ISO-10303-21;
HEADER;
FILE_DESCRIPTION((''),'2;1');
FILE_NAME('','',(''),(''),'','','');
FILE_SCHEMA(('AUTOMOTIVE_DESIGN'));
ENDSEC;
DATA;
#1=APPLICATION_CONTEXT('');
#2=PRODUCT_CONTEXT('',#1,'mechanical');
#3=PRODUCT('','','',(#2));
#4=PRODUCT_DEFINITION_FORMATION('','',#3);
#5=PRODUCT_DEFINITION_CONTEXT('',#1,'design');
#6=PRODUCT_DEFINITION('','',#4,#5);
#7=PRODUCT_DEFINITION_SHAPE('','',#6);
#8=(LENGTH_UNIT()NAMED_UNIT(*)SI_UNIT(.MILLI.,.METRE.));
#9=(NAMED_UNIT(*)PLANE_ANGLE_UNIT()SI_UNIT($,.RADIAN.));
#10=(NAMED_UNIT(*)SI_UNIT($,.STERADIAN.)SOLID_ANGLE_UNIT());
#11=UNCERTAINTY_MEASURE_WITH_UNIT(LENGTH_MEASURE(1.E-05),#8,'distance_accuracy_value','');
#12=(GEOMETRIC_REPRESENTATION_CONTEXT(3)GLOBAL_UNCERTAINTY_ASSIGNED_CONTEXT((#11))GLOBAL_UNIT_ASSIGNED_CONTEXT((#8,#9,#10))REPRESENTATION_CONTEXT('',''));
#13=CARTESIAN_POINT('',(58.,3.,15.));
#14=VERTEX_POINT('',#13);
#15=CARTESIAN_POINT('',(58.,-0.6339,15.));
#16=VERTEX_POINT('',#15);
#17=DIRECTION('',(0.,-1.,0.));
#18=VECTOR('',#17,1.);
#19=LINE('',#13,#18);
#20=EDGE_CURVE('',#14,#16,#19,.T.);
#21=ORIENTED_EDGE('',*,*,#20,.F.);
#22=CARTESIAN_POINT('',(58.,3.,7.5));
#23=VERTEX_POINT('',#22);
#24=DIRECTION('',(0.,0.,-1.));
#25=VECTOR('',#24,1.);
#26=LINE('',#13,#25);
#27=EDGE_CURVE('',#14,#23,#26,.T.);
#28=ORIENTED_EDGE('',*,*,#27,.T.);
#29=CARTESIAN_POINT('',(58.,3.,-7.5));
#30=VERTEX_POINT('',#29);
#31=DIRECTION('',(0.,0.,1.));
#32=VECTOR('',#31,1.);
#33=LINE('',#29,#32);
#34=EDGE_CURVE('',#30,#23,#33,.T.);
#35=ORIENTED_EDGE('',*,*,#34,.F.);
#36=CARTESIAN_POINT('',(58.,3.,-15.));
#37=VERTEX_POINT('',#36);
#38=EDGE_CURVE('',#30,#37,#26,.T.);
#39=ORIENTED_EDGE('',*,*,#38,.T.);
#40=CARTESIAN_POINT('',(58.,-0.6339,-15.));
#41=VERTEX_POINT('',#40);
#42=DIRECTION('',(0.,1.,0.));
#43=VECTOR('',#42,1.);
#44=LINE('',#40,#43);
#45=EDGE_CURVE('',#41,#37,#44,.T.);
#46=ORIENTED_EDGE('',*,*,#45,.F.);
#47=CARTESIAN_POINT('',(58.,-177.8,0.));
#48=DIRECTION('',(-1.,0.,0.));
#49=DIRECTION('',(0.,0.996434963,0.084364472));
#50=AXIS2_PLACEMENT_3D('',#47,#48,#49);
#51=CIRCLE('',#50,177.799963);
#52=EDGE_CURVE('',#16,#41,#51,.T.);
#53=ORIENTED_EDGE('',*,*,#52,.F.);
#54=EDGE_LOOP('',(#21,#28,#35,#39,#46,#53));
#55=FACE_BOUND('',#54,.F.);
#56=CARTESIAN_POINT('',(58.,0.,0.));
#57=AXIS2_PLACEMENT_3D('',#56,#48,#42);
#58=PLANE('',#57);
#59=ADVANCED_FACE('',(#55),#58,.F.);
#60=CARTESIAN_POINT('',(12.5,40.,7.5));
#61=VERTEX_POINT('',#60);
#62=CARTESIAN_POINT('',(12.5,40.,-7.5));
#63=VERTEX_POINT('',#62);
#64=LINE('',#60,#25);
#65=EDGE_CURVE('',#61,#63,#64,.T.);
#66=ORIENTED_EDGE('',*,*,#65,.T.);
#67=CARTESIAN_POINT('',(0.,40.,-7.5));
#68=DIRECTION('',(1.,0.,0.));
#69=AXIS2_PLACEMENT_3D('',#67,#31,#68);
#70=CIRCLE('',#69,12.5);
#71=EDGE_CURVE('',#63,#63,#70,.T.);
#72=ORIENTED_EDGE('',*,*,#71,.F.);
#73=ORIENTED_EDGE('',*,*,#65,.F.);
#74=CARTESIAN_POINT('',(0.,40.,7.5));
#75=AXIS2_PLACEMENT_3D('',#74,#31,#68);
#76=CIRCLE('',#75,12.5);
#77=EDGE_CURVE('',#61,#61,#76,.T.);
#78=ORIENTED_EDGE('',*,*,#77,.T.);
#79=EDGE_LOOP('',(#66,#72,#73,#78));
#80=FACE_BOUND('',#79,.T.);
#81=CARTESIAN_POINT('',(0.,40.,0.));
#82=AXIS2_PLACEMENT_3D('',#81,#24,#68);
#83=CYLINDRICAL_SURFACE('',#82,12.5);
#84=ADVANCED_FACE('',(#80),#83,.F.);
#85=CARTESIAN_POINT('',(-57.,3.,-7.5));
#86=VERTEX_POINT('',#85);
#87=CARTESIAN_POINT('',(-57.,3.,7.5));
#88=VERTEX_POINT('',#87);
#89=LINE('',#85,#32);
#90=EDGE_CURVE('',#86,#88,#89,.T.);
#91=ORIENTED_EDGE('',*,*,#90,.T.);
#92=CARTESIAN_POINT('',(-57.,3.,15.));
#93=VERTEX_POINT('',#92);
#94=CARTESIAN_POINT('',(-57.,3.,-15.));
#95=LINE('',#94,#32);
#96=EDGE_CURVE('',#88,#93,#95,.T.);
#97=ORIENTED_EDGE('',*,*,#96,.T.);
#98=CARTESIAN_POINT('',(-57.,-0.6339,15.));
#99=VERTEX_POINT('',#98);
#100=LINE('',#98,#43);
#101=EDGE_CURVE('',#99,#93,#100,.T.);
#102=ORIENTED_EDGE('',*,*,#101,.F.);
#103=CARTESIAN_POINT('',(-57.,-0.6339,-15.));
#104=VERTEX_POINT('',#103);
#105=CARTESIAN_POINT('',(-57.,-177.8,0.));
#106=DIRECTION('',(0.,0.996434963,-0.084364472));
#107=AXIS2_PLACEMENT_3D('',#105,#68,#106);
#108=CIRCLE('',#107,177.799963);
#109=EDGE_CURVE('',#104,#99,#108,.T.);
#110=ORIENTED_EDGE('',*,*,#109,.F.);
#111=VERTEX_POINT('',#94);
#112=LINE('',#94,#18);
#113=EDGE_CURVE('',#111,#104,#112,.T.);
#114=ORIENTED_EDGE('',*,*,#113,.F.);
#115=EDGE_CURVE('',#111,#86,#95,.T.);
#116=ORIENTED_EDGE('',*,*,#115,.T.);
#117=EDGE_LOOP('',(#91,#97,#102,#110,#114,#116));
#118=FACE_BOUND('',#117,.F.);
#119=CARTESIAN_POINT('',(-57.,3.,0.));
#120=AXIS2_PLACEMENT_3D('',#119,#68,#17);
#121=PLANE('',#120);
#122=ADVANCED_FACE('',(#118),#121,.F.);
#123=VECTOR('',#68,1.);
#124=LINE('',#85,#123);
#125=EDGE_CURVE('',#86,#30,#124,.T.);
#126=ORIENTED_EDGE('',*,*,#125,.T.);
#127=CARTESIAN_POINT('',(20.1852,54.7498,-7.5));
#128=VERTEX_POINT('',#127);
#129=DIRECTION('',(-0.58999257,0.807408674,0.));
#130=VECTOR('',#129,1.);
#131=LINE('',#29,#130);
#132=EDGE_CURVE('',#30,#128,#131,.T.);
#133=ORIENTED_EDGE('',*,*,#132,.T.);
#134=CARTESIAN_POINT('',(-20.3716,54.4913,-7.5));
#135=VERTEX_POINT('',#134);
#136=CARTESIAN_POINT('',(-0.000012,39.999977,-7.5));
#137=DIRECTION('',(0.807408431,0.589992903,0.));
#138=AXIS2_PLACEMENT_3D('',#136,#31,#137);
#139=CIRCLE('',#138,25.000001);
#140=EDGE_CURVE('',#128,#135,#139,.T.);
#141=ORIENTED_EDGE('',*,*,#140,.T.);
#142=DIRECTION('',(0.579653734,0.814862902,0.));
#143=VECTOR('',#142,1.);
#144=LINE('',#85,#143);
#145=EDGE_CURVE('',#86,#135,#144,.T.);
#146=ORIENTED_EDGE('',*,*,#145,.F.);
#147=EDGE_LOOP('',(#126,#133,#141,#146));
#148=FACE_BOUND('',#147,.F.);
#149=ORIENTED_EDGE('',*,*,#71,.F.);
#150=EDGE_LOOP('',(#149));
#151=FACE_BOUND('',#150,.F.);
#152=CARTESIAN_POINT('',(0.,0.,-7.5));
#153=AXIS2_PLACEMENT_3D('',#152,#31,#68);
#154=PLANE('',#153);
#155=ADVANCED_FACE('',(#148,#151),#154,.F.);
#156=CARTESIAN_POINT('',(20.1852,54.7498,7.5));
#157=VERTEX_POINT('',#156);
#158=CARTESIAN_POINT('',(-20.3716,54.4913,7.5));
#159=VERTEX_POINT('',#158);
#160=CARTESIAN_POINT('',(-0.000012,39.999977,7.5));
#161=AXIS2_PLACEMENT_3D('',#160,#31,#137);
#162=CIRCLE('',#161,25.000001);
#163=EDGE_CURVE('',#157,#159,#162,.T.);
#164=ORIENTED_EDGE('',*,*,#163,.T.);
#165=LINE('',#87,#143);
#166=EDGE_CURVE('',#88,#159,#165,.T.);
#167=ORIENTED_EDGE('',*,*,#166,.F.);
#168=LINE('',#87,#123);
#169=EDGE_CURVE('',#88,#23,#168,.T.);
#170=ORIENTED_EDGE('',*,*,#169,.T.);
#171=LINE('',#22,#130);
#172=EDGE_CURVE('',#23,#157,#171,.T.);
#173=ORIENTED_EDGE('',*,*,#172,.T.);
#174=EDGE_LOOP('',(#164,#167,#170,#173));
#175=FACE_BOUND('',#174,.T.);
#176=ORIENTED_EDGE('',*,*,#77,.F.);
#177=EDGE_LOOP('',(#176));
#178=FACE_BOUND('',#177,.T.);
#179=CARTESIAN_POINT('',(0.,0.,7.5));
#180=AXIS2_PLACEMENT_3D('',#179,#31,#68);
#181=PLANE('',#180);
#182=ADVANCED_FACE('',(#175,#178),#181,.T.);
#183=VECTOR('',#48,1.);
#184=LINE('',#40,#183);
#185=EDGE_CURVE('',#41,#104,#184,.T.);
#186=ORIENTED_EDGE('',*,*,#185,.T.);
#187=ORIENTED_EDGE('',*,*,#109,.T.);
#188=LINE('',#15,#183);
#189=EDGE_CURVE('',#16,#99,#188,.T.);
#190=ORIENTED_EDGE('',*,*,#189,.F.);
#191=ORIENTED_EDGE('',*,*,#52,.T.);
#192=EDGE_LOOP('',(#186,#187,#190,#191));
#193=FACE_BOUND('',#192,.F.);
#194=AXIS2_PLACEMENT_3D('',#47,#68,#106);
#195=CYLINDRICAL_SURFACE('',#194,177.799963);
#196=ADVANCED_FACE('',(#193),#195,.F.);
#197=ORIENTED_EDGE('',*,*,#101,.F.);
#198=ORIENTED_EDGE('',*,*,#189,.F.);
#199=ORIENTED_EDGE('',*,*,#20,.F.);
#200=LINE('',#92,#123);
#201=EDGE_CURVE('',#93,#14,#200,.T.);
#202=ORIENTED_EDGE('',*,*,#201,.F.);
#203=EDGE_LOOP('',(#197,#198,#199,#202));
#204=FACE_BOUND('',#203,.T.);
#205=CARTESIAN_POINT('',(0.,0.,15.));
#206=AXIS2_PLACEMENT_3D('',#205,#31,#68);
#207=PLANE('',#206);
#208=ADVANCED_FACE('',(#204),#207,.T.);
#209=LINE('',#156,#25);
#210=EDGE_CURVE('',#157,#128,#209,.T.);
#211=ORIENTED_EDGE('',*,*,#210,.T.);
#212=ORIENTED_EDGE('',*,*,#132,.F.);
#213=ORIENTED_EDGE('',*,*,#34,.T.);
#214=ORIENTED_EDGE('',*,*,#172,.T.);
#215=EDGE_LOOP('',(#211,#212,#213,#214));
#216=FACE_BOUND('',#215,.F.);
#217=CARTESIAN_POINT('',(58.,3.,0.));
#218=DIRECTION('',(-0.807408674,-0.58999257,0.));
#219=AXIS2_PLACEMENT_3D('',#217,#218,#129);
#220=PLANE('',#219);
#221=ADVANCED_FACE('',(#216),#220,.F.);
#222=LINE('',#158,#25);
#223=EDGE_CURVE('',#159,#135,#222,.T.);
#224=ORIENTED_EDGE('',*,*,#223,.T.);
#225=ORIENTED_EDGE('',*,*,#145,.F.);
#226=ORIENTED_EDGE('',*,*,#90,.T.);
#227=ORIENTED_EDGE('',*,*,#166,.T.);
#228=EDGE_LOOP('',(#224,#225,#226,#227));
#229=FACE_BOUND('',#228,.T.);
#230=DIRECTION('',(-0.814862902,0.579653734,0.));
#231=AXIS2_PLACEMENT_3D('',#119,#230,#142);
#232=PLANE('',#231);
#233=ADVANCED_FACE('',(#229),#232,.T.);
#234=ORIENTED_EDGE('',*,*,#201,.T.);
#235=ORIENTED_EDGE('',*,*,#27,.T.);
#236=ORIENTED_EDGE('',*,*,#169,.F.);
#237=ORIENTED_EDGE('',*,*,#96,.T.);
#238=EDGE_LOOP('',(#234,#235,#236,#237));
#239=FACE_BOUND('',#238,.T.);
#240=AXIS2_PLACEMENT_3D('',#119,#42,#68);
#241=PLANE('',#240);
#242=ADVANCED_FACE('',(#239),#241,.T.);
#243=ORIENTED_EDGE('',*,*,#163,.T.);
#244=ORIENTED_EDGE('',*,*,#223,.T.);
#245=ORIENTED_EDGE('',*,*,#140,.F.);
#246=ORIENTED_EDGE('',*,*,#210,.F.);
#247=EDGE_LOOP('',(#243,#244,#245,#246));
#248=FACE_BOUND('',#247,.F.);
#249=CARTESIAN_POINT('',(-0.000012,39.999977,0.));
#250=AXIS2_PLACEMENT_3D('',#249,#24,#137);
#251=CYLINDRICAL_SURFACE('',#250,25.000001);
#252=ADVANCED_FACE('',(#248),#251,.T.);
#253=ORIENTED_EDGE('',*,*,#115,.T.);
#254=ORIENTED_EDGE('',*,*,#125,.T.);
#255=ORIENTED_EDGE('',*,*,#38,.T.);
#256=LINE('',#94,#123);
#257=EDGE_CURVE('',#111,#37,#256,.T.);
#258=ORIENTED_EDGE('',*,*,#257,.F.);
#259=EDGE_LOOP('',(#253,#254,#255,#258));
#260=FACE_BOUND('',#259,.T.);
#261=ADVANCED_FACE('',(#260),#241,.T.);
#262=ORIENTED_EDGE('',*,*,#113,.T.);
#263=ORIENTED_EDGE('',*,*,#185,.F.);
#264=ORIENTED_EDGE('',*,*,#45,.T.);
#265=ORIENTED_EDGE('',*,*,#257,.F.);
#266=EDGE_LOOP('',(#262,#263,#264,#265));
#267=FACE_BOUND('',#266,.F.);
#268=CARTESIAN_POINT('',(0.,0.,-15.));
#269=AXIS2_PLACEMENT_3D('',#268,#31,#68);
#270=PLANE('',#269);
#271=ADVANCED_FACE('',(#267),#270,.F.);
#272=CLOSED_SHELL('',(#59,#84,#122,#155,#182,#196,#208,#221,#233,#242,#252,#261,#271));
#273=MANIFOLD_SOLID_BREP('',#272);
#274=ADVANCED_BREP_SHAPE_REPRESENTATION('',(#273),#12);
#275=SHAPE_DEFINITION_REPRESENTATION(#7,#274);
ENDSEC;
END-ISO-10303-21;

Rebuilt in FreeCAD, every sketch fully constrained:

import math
import FreeCAD as App
import Part
import Sketcher


def add_polygon(sketch, points):
    """Adds a closed chain of lines whose ends are joined by coincident constraints."""
    first, n = sketch.GeometryCount, len(points)
    for a, b in zip(points, points[1:] + points[:1]):
        sketch.addGeometry(Part.LineSegment(App.Vector(*a, 0), App.Vector(*b, 0)), False)
    for i in range(n):
        sketch.addConstraint(Sketcher.Constraint("Coincident", first + i, 2, first + (i + 1) % n, 1))

doc = App.newDocument("Part")
params = doc.addObject("Spreadsheet::Sheet", "Params")
for row, (alias, value) in enumerate([
    ("sketch1_diameter", "25 mm"),
    ("sketch1_radius", "25 mm"),
    ("pad1_length", "15 mm"),
    ("sketch2_width", "115 mm"),
    ("sketch2_height", "3 mm"),
    ("pad2_length", "30 mm"),
    ("sketch3_radius", "177.8 mm"),
    ("sketch3_height", "15 mm"),
    ("pad3_length", "115 mm"),
], start=1):
    params.set(f"A{row}", alias)
    params.set(f"B{row}", "=" + value)
    params.setAlias(f"B{row}", alias)

body = doc.addObject("PartDesign::Body", "Body")

# Sketch on XY plane
sketch1 = body.newObject("Sketcher::SketchObject", "Sketch")
sketch1.AttachmentSupport = (doc.getObject("XY_Plane"), [""])
sketch1.MapMode = "FlatFace"
sketch1.addGeometry([
    Part.LineSegment(App.Vector(-20.3716, 54.4913, 0), App.Vector(-57, 3, 0)),  # 0
    Part.LineSegment(App.Vector(-57, 3, 0), App.Vector(58, 3, 0)),  # 1
    Part.LineSegment(App.Vector(58, 3, 0), App.Vector(20.1852, 54.7498, 0)),  # 2
    Part.ArcOfCircle(Part.Circle(App.Vector(0, 40, 0), App.Vector(0, 0, 1), 24.999978), math.radians(36.156477), math.radians(144.573926)),  # 3
    Part.Circle(App.Vector(0, 40, 0), App.Vector(0, 0, 1), 12.5),  # 4
], False)
sketch1.addConstraint([
    Sketcher.Constraint("Coincident", 0, 2, 1, 1),
    Sketcher.Constraint("Coincident", 1, 2, 2, 1),
    Sketcher.Constraint("Tangent", 2, 2, 3, 1),
    Sketcher.Constraint("Tangent", 3, 2, 0, 1),
    Sketcher.Constraint("Horizontal", 1),
    Sketcher.Constraint("Coincident", 4, 3, 3, 3),
    Sketcher.Constraint("PointOnObject", 3, 3, -2),
    Sketcher.Constraint("Diameter", 4, 25.0),
    Sketcher.Constraint("Radius", 3, 25.0),
    Sketcher.Constraint("DistanceY", -1, 1, 3, 3, 40.0),
    Sketcher.Constraint("DistanceX", 0, 2, -1, 1, 57.0),
    Sketcher.Constraint("DistanceY", -1, 1, 0, 2, 3.0),
    Sketcher.Constraint("DistanceX", -1, 1, 1, 2, 58.0),
])
sketch1.setExpression("Constraints[7]", "Params.sketch1_diameter")
sketch1.setExpression("Constraints[8]", "Params.sketch1_radius")
pad1 = body.newObject("PartDesign::Pad", "Pad")
pad1.Profile = sketch1
pad1.setExpression("Length", "Params.pad1_length")
pad1.Midplane = True

# Sketch on XY plane
sketch2 = body.newObject("Sketcher::SketchObject", "Sketch001")
sketch2.AttachmentSupport = (doc.getObject("XY_Plane"), [""])
sketch2.MapMode = "FlatFace"
add_polygon(sketch2, [(58, 3), (-57, 3), (-57, 0), (58, 0)])  # lines 0-3
sketch2.addConstraint([
    Sketcher.Constraint("Horizontal", 0),
    Sketcher.Constraint("Vertical", 1),
    Sketcher.Constraint("Horizontal", 2),
    Sketcher.Constraint("Vertical", 3),
    Sketcher.Constraint("PointOnObject", 1, 2, -1),
    Sketcher.Constraint("DistanceX", 0, 2, 0, 1, 115.0),
    Sketcher.Constraint("DistanceY", 1, 2, 1, 1, 3.0),
    Sketcher.Constraint("DistanceX", 0, 2, -1, 1, 57.0),
])
sketch2.setExpression("Constraints[9]", "Params.sketch2_width")
sketch2.setExpression("Constraints[10]", "Params.sketch2_height")
pad2 = body.newObject("PartDesign::Pad", "Pad001")
pad2.Profile = sketch2
pad2.setExpression("Length", "Params.pad2_length")
pad2.Midplane = True

# Sketch on YZ plane
sketch3 = body.newObject("Sketcher::SketchObject", "Sketch002")
sketch3.AttachmentSupport = (doc.getObject("YZ_Plane"), [""])
sketch3.MapMode = "FlatFace"
sketch3.AttachmentOffset = App.Placement(App.Vector(0, 0, 58), App.Rotation())
sketch3.addGeometry([
    Part.ArcOfCircle(Part.Circle(App.Vector(-177.8, 0, 0), App.Vector(0, 0, 1), 177.799963), math.radians(0.000001), math.radians(4.839481)),  # 0
    Part.LineSegment(App.Vector(0, 0.000002, 0), App.Vector(0, 15, 0)),  # 1
    Part.LineSegment(App.Vector(0, 15, 0), App.Vector(-0.6339, 15, 0)),  # 2
    Part.ArcOfCircle(Part.Circle(App.Vector(-177.8, 0, 0), App.Vector(0, 0, 1), 177.799963), math.radians(-4.839481), math.radians(0.000001)),  # 3
    Part.LineSegment(App.Vector(-0.6339, -15, 0), App.Vector(0, -15, 0)),  # 4
    Part.LineSegment(App.Vector(0, -15, 0), App.Vector(0, 0.000002, 0)),  # 5
], False)
sketch3.addConstraint([
    Sketcher.Constraint("Tangent", 0, 1, 1, 1),
    Sketcher.Constraint("Coincident", 1, 2, 2, 1),
    Sketcher.Constraint("Coincident", 2, 2, 0, 2),
    Sketcher.Constraint("Coincident", 3, 1, 4, 1),
    Sketcher.Constraint("Coincident", 4, 2, 5, 1),
    Sketcher.Constraint("Tangent", 5, 2, 3, 2),
    Sketcher.Constraint("Vertical", 1),
    Sketcher.Constraint("Horizontal", 2),
    Sketcher.Constraint("Horizontal", 4),
    Sketcher.Constraint("Vertical", 5),
    Sketcher.Constraint("Coincident", 0, 1, -1, 1),
    Sketcher.Constraint("Coincident", 5, 2, -1, 1),
    Sketcher.Constraint("Equal", 0, 3),
    Sketcher.Constraint("Vertical", 2, 2, 3, 1),
    Sketcher.Constraint("Radius", 0, 177.8),
    Sketcher.Constraint("DistanceY", 1, 1, 1, 2, 15.0),
])
sketch3.setExpression("Constraints[14]", "Params.sketch3_radius")
sketch3.setExpression("Constraints[15]", "Params.sketch3_height")
pad3 = body.newObject("PartDesign::Pad", "Pad002")
pad3.Profile = sketch3
pad3.setExpression("Length", "Params.pad3_length")
pad3.Reversed = True

doc.recompute()
